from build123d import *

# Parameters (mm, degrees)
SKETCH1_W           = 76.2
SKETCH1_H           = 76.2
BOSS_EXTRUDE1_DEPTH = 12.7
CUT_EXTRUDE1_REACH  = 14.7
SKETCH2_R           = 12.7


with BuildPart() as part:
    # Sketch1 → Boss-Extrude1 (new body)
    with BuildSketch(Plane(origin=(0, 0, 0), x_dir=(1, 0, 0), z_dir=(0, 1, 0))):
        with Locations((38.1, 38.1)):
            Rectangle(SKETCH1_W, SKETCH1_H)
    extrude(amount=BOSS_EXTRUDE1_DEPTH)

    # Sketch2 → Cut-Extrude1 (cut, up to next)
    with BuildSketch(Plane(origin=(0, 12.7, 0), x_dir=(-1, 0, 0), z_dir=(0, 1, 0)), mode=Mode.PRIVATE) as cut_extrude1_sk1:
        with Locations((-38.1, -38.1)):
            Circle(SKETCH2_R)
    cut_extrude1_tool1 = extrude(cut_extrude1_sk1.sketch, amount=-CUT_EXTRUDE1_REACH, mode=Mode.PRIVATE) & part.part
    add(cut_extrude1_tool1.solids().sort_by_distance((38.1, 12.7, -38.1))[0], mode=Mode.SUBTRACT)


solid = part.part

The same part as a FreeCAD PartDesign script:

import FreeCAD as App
import Part
import Sketcher

V = App.Vector
Q = App.Units.Quantity

doc = App.newDocument("Part")
body = doc.addObject("PartDesign::Body", "Body")

sketch1 = body.newObject("Sketcher::SketchObject", "Sketch")
sketch1.AttachmentSupport = (doc.getObject("XZ_Plane"), [""])
sketch1.MapMode = "FlatFace"
sketch1.addGeometry(Part.LineSegment(V(0, -76, 0), V(0, 0, 0)), False)
sketch1.addGeometry(Part.LineSegment(V(0, 0, 0), V(76, 0, 0)), False)
sketch1.addGeometry(Part.LineSegment(V(76, 0, 0), V(76, -76, 0)), False)
sketch1.addGeometry(Part.LineSegment(V(76, -76, 0), V(0, -76, 0)), False)
sketch1.addConstraint(Sketcher.Constraint("Coincident", 0, 2, 1, 1))
sketch1.addConstraint(Sketcher.Constraint("Coincident", 1, 2, 2, 1))
sketch1.addConstraint(Sketcher.Constraint("Coincident", 2, 2, 3, 1))
sketch1.addConstraint(Sketcher.Constraint("Coincident", 3, 2, 0, 1))
sketch1.addConstraint(Sketcher.Constraint("Vertical", 0))
sketch1.addConstraint(Sketcher.Constraint("Horizontal", 1))
sketch1.addConstraint(Sketcher.Constraint("Vertical", 2))
sketch1.addConstraint(Sketcher.Constraint("Horizontal", 3))
sketch1.addConstraint(Sketcher.Constraint("Coincident", 0, 2, -1, 1))
sketch1.addConstraint(Sketcher.Constraint("Equal", 3, 0))
sketch1.addConstraint(Sketcher.Constraint("DistanceX", 1, 1, 1, 2, Q("3 in")))
pad1 = body.newObject("PartDesign::Pad", "Pad")
pad1.Profile = sketch1
pad1.Length = Q("0.5 in")
pad1.Reversed = True

sketch2 = body.newObject("Sketcher::SketchObject", "Sketch001")
sketch2.AttachmentSupport = (doc.getObject("XZ_Plane"), [""])
sketch2.MapMode = "FlatFace"
sketch2.AttachmentOffset = App.Placement(V(0, 0, -0.5 * 25.4), App.Rotation())
sketch2.addGeometry(Part.Circle(V(38, -38, 0), V(0, 0, 1), 13), False)
sketch2.addConstraint(Sketcher.Constraint("Diameter", 0, Q("1 in")))
sketch2.addConstraint(Sketcher.Constraint("DistanceX", -1, 1, 0, 3, Q("1.5 in")))
sketch2.addConstraint(Sketcher.Constraint("DistanceY", 0, 3, -1, 1, Q("1.5 in")))
pocket1 = body.newObject("PartDesign::Pocket", "Pocket")
pocket1.Profile = sketch2
pocket1.Type = "UpToFirst"
pocket1.Reversed = True

doc.recompute()
